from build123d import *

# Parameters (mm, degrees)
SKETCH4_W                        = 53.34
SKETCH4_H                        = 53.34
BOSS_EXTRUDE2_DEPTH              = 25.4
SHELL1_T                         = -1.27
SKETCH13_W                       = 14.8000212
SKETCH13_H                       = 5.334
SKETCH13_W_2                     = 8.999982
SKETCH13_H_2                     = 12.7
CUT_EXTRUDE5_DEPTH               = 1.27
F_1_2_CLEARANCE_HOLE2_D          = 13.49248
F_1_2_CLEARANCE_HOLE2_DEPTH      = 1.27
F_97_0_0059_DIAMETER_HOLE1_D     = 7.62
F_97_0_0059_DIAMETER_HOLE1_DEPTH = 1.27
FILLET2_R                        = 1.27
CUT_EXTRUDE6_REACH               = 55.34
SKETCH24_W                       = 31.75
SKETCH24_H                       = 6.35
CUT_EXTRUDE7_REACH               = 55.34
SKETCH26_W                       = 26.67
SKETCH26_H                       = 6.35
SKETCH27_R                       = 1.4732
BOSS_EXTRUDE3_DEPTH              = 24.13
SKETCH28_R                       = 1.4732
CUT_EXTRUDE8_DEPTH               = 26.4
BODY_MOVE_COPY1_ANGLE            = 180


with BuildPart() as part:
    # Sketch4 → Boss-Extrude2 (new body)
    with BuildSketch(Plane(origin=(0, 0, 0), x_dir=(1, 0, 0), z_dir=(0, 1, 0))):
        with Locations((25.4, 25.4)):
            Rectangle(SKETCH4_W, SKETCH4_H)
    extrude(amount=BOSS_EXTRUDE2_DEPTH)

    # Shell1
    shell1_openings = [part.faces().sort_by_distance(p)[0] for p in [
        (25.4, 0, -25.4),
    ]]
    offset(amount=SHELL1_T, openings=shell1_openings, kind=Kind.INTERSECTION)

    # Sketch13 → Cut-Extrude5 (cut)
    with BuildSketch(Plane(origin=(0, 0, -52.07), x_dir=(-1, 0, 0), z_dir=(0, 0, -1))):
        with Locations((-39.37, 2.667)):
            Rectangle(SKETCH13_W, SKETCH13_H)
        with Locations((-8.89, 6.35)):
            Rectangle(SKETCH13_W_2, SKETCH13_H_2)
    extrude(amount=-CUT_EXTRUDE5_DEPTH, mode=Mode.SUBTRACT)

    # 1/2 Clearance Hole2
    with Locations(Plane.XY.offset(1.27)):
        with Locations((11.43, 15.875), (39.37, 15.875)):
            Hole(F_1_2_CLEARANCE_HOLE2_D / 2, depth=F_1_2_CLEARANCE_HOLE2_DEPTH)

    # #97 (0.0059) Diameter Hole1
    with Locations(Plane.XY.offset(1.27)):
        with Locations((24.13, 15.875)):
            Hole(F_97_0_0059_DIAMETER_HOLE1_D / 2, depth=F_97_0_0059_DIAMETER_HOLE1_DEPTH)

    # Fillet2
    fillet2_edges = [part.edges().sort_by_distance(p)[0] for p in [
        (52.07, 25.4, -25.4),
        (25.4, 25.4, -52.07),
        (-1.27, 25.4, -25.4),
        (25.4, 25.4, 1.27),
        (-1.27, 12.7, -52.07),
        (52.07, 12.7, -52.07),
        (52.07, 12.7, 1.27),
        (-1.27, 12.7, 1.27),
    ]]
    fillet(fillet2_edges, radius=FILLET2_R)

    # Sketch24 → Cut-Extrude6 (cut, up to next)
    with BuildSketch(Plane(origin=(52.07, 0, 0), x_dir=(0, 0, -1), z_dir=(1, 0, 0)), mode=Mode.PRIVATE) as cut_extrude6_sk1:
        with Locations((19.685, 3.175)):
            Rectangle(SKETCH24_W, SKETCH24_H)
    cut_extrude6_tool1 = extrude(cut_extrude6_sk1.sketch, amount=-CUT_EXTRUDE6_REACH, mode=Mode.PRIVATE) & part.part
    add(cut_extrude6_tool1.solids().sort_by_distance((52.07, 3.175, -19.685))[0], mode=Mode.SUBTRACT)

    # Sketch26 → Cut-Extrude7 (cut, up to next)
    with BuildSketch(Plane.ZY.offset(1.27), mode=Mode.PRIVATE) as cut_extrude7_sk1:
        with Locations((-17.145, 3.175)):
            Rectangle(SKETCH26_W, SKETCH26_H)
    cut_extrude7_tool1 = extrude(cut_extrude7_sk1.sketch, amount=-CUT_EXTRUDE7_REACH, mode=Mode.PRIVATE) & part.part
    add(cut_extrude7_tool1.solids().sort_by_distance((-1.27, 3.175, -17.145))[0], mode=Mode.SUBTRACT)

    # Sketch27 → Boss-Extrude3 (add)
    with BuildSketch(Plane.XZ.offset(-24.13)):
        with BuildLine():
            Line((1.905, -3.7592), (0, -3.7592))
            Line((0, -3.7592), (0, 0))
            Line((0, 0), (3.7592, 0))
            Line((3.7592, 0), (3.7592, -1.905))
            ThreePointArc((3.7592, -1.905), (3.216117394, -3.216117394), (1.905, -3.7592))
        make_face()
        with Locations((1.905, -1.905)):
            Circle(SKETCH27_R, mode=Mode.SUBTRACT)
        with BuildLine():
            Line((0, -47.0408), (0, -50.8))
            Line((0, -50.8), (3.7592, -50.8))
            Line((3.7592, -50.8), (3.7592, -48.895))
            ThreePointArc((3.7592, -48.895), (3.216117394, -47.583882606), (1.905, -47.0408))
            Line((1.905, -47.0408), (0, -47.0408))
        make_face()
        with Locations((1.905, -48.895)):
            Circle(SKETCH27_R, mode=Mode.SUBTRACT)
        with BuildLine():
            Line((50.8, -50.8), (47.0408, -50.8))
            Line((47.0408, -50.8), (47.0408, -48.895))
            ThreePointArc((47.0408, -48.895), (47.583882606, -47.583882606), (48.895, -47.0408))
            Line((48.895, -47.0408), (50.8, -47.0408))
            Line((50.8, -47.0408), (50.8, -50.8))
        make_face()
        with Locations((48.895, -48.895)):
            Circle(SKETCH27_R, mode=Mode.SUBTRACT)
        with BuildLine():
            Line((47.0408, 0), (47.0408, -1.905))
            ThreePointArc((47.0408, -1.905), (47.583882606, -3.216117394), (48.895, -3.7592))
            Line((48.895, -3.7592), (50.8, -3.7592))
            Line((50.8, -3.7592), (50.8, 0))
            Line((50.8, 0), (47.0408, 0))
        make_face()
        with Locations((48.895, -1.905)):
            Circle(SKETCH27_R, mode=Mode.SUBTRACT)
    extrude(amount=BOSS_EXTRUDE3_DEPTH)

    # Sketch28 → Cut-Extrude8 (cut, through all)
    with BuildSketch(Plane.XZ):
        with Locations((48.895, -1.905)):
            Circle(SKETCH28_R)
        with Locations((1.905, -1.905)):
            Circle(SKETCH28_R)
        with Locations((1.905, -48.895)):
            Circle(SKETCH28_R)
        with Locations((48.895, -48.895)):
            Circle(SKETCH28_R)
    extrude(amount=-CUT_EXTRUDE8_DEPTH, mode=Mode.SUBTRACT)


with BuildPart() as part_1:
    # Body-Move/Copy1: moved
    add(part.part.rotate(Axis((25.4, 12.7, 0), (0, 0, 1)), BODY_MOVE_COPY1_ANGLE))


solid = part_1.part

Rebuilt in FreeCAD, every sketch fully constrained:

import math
import FreeCAD as App
import Part
import Sketcher

V = App.Vector
Q = App.Units.Quantity


def edges_at(feature, points):
    """Names of the edges that pass closest to the given points."""
    edges = feature.Shape.Edges
    near = lambda p: min(range(len(edges)), key=lambda i: edges[i].distToShape(Part.Vertex(*p))[0])
    return sorted({f"Edge{near(p) + 1}" for p in points})


def faces_at(feature, points):
    """Names of the faces that lie closest to the given points."""
    faces = feature.Shape.Faces
    near = lambda p: min(range(len(faces)), key=lambda i: faces[i].distToShape(Part.Vertex(*p))[0])
    return sorted({f"Face{near(p) + 1}" for p in points})


def add_polygon(sketch, points):
    """Adds a closed chain of lines whose ends are joined by coincident constraints."""
    first, n = sketch.GeometryCount, len(points)
    for a, b in zip(points, points[1:] + points[:1]):
        sketch.addGeometry(Part.LineSegment(App.Vector(*a, 0), App.Vector(*b, 0)), False)
    for i in range(n):
        sketch.addConstraint(Sketcher.Constraint("Coincident", first + i, 2, first + (i + 1) % n, 1))

doc = App.newDocument("Part")
body = doc.addObject("PartDesign::Body", "Body")

# Sketch on XZ plane
sketch1 = body.newObject("Sketcher::SketchObject", "Sketch")
sketch1.AttachmentSupport = (doc.getObject("XZ_Plane"), [""])
sketch1.MapMode = "FlatFace"
add_polygon(sketch1, [(-1, -52), (-1, 1), (52, 1), (52, -52)])  # lines 0-3
sketch1.addConstraint([
    Sketcher.Constraint("Vertical", 0),
    Sketcher.Constraint("Horizontal", 1),
    Sketcher.Constraint("Vertical", 2),
    Sketcher.Constraint("Horizontal", 3),
    Sketcher.Constraint("Equal", 3, 0),
    Sketcher.Constraint("DistanceX", 1, 1, 1, 2, Q("2.1 in")),
    Sketcher.Constraint("DistanceX", 0, 2, -1, 1, Q("0.05 in")),
    Sketcher.Constraint("DistanceY", -1, 1, 0, 2, Q("0.05 in")),
])
pad1 = body.newObject("PartDesign::Pad", "Pad")
pad1.Profile = sketch1
pad1.Length = Q("1 in")
pad1.Reversed = True
doc.recompute()

thickness = body.newObject("PartDesign::Thickness", "Thickness")
thickness.Base = (pad1, faces_at(pad1, [(25.4, 0, -25.4)]))
thickness.Value = Q("0.05 in")
thickness.Reversed = True
thickness.Join = "Intersection"

# Sketch on XY plane
sketch2 = body.newObject("Sketcher::SketchObject", "Sketch001")
sketch2.AttachmentSupport = (doc.getObject("XY_Plane"), [""])
sketch2.MapMode = "FlatFace"
sketch2.AttachmentOffset = App.Placement(V(0, 0, -2.05 * 25.4), App.Rotation())
add_polygon(sketch2, [(47, 5), (47, 0), (32, 0), (32, 5)])  # lines 0-3
add_polygon(sketch2, [(13, 13), (13, 0), (4, 0), (4, 13)])  # lines 4-7
sketch2.addConstraint([
    Sketcher.Constraint("Vertical", 0),
    Sketcher.Constraint("Horizontal", 1),
    Sketcher.Constraint("Vertical", 2),
    Sketcher.Constraint("Horizontal", 3),
    Sketcher.Constraint("Vertical", 4),
    Sketcher.Constraint("Horizontal", 5),
    Sketcher.Constraint("Vertical", 6),
    Sketcher.Constraint("Horizontal", 7),
    Sketcher.Constraint("PointOnObject", 0, 2, -1),
    Sketcher.Constraint("PointOnObject", 4, 2, -1),
    Sketcher.Constraint("DistanceY", 4, 2, 4, 1, Q("0.5 in")),
    Sketcher.Constraint("DistanceY", 0, 2, 0, 1, Q("0.21 in")),
    Sketcher.Constraint("DistanceX", 1, 2, 1, 1, 14.800021),
    Sketcher.Constraint("DistanceX", 5, 2, 5, 1, 8.999982),
    Sketcher.Constraint("DistanceX", 4, 2, 1, 2, 18.579998),
    Sketcher.Constraint("DistanceX", -1, 1, 0, 2, 46.770011),
])
pocket1 = body.newObject("PartDesign::Pocket", "Pocket")
pocket1.Profile = sketch2
pocket1.Length = Q("0.05 in")
pocket1.Reversed = True

# Sketch on XY plane
sketch3 = body.newObject("Sketcher::SketchObject", "Sketch002")
sketch3.AttachmentSupport = (doc.getObject("XY_Plane"), [""])
sketch3.MapMode = "FlatFace"
sketch3.AttachmentOffset = App.Placement(V(0, 0, 0.05 * 25.4), App.Rotation())
sketch3.addGeometry([
    Part.Circle(V(11, 16, 0), V(0, 0, 1), 7),
    Part.Circle(V(39, 16, 0), V(0, 0, 1), 7),
], False)
sketch3.addConstraint([
    Sketcher.Constraint("Equal", 0, 1),
    Sketcher.Constraint("Horizontal", 0, 3, 1, 3),
    Sketcher.Constraint("Diameter", 0, Q("0.5312 in")),
    Sketcher.Constraint("DistanceX", 0, 3, 1, 3, Q("1.1 in")),
    Sketcher.Constraint("DistanceX", -1, 1, 0, 3, Q("0.45 in")),
    Sketcher.Constraint("DistanceY", -1, 1, 0, 3, Q("0.625 in")),
])
doc.recompute()
hole = body.newObject("PartDesign::Hole", "Hole")
hole.Profile = sketch3
hole.ThreadType = "None"
hole.Diameter = Q("0.5312 in")
hole.DepthType = "Dimension"
hole.Depth = Q("0.05 in")
hole.DrillPoint = "Flat"

# Sketch on XY plane
sketch4 = body.newObject("Sketcher::SketchObject", "Sketch003")
sketch4.AttachmentSupport = (doc.getObject("XY_Plane"), [""])
sketch4.MapMode = "FlatFace"
sketch4.AttachmentOffset = App.Placement(V(0, 0, 0.05 * 25.4), App.Rotation())
sketch4.addGeometry(Part.Circle(V(24.1, 15.9, 0), V(0, 0, 1), 3.8), False)
sketch4.addConstraint([
    Sketcher.Constraint("Diameter", 0, Q("0.3 in")),
    Sketcher.Constraint("DistanceX", -1, 1, 0, 3, Q("0.95 in")),
    Sketcher.Constraint("DistanceY", -1, 1, 0, 3, Q("0.625 in")),
])
doc.recompute()
hole2 = body.newObject("PartDesign::Hole", "Hole001")
hole2.Profile = sketch4
hole2.ThreadType = "None"
hole2.Diameter = Q("0.3 in")
hole2.DepthType = "Dimension"
hole2.Depth = Q("0.05 in")
hole2.DrillPoint = "Flat"
doc.recompute()

fillet = body.newObject("PartDesign::Fillet", "Fillet")
fillet.Base = (hole2, edges_at(hole2, [
    (52.07, 25.4, -25.4),
    (25.4, 25.4, -52.07),
    (-1.27, 25.4, -25.4),
    (25.4, 25.4, 1.27),
    (-1.27, 12.7, -52.07),
    (52.07, 12.7, -52.07),
    (52.07, 12.7, 1.27),
    (-1.27, 12.7, 1.27),
]))
fillet.Radius = Q("0.05 in")

# Sketch on YZ plane
sketch5 = body.newObject("Sketcher::SketchObject", "Sketch004")
sketch5.AttachmentSupport = (doc.getObject("YZ_Plane"), [""])
sketch5.MapMode = "FlatFace"
sketch5.AttachmentOffset = App.Placement(V(0, 0, 2.05 * 25.4), App.Rotation())
add_polygon(sketch5, [(6, -4), (0, -4), (0, -36), (6, -36)])  # lines 0-3
sketch5.addConstraint([
    Sketcher.Constraint("Horizontal", 0),
    Sketcher.Constraint("Vertical", 1),
    Sketcher.Constraint("Horizontal", 2),
    Sketcher.Constraint("Vertical", 3),
    Sketcher.Constraint("PointOnObject", 0, 2, -2),
    Sketcher.Constraint("DistanceX", 0, 2, 0, 1, Q("0.25 in")),
    Sketcher.Constraint("DistanceY", 1, 2, 1, 1, Q("1.25 in")),
    Sketcher.Constraint("DistanceY", 1, 2, -1, 1, Q("1.4 in")),
])
pocket2 = body.newObject("PartDesign::Pocket", "Pocket001")
pocket2.Profile = sketch5
pocket2.Type = "UpToFirst"

# Sketch on YZ plane
sketch6 = body.newObject("Sketcher::SketchObject", "Sketch005")
sketch6.AttachmentSupport = (doc.getObject("YZ_Plane"), [""])
sketch6.MapMode = "FlatFace"
sketch6.AttachmentOffset = App.Placement(V(0, 0, -0.05 * 25.4), App.Rotation())
add_polygon(sketch6, [(6, -30), (0, -30), (0, -4), (6, -4)])  # lines 0-3
sketch6.addConstraint([
    Sketcher.Constraint("Horizontal", 0),
    Sketcher.Constraint("Vertical", 1),
    Sketcher.Constraint("Horizontal", 2),
    Sketcher.Constraint("Vertical", 3),
    Sketcher.Constraint("PointOnObject", 0, 2, -2),
    Sketcher.Constraint("DistanceX", 0, 2, 0, 1, Q("0.25 in")),
    Sketcher.Constraint("DistanceY", 1, 1, 1, 2, Q("1.05 in")),
    Sketcher.Constraint("DistanceY", 0, 2, -1, 1, Q("1.2 in")),
])
pocket3 = body.newObject("PartDesign::Pocket", "Pocket002")
pocket3.Profile = sketch6
pocket3.Type = "UpToFirst"
pocket3.Reversed = True

# Sketch on XZ plane
sketch7 = body.newObject("Sketcher::SketchObject", "Sketch006")
sketch7.AttachmentSupport = (doc.getObject("XZ_Plane"), [""])
sketch7.MapMode = "FlatFace"
sketch7.AttachmentOffset = App.Placement(V(0, 0, -0.95 * 25.4), App.Rotation())
sketch7.addGeometry([
    Part.LineSegment(V(0, -3.8, 0), V(1.9, -3.8, 0)),  # 0
    Part.ArcOfCircle(Part.Circle(V(1.9, -1.9, 0), V(0, 0, 1), 1.9), math.radians(-90), math.radians(0)),  # 1
    Part.LineSegment(V(3.8, -1.9, 0), V(3.8, 0, 0)),  # 2
    Part.LineSegment(V(3.8, 0, 0), V(0, 0, 0)),  # 3
    Part.LineSegment(V(0, 0, 0), V(0, -3.8, 0)),  # 4
    Part.Circle(V(1.9, -1.9, 0), V(0, 0, 1), 1.5),  # 5
    Part.LineSegment(V(0, -47, 0), V(0, -50.8, 0)),  # 6
    Part.LineSegment(V(0, -50.8, 0), V(3.8, -50.8, 0)),  # 7
    Part.LineSegment(V(3.8, -50.8, 0), V(3.8, -48.9, 0)),  # 8
    Part.ArcOfCircle(Part.Circle(V(1.9, -48.9, 0), V(0, 0, 1), 1.9), math.radians(0), math.radians(90)),  # 9
    Part.LineSegment(V(1.9, -47, 0), V(0, -47, 0)),  # 10
    Part.Circle(V(1.9, -48.9, 0), V(0, 0, 1), 1.5),  # 11
    Part.LineSegment(V(47, -50.8, 0), V(50.8, -50.8, 0)),  # 12
    Part.LineSegment(V(50.8, -50.8, 0), V(50.8, -47, 0)),  # 13
    Part.LineSegment(V(50.8, -47, 0), V(48.9, -47, 0)),  # 14
    Part.ArcOfCircle(Part.Circle(V(48.9, -48.9, 0), V(0, 0, 1), 1.9), math.radians(90), math.radians(180)),  # 15
    Part.LineSegment(V(47, -48.9, 0), V(47, -50.8, 0)),  # 16
    Part.Circle(V(48.9, -48.9, 0), V(0, 0, 1), 1.5),  # 17
    Part.LineSegment(V(47, 0, 0), V(47, -1.9, 0)),  # 18
    Part.ArcOfCircle(Part.Circle(V(48.9, -1.9, 0), V(0, 0, 1), 1.9), math.radians(180), math.radians(270)),  # 19
    Part.LineSegment(V(48.9, -3.8, 0), V(50.8, -3.8, 0)),  # 20
    Part.LineSegment(V(50.8, -3.8, 0), V(50.8, 0, 0)),  # 21
    Part.LineSegment(V(50.8, 0, 0), V(47, 0, 0)),  # 22
    Part.Circle(V(48.9, -1.9, 0), V(0, 0, 1), 1.5),  # 23
], False)
sketch7.addConstraint([
    Sketcher.Constraint("Tangent", 0, 2, 1, 1),
    Sketcher.Constraint("Tangent", 1, 2, 2, 1),
    Sketcher.Constraint("Coincident", 2, 2, 3, 1),
    Sketcher.Constraint("Coincident", 3, 2, 4, 1),
    Sketcher.Constraint("Coincident", 4, 2, 0, 1),
    Sketcher.Constraint("Coincident", 6, 2, 7, 1),
    Sketcher.Constraint("Coincident", 7, 2, 8, 1),
    Sketcher.Constraint("Tangent", 8, 2, 9, 1),
    Sketcher.Constraint("Tangent", 9, 2, 10, 1),
    Sketcher.Constraint("Coincident", 10, 2, 6, 1),
    Sketcher.Constraint("Coincident", 12, 2, 13, 1),
    Sketcher.Constraint("Coincident", 13, 2, 14, 1),
    Sketcher.Constraint("Tangent", 14, 2, 15, 1),
    Sketcher.Constraint("Tangent", 15, 2, 16, 1),
    Sketcher.Constraint("Coincident", 16, 2, 12, 1),
    Sketcher.Constraint("Tangent", 18, 2, 19, 1),
    Sketcher.Constraint("Tangent", 19, 2, 20, 1),
    Sketcher.Constraint("Coincident", 20, 2, 21, 1),
    Sketcher.Constraint("Coincident", 21, 2, 22, 1),
    Sketcher.Constraint("Coincident", 22, 2, 18, 1),
    Sketcher.Constraint("Horizontal", 0),
    Sketcher.Constraint("Vertical", 2),
    Sketcher.Constraint("Horizontal", 3),
    Sketcher.Constraint("Vertical", 4),
    Sketcher.Constraint("Vertical", 6),
    Sketcher.Constraint("Horizontal", 7),
    Sketcher.Constraint("Vertical", 8),
    Sketcher.Constraint("Horizontal", 10),
    Sketcher.Constraint("Horizontal", 12),
    Sketcher.Constraint("Vertical", 13),
    Sketcher.Constraint("Horizontal", 14),
    Sketcher.Constraint("Vertical", 16),
    Sketcher.Constraint("Vertical", 18),
    Sketcher.Constraint("Horizontal", 20),
    Sketcher.Constraint("Vertical", 21),
    Sketcher.Constraint("Horizontal", 22),
    Sketcher.Constraint("Coincident", 3, 2, -1, 1),
    Sketcher.Constraint("Coincident", 5, 3, 1, 3),
    Sketcher.Constraint("Coincident", 11, 3, 9, 3),
    Sketcher.Constraint("Coincident", 17, 3, 15, 3),
    Sketcher.Constraint("Coincident", 23, 3, 19, 3),
    Sketcher.Constraint("Equal", 1, 9),
    Sketcher.Constraint("Equal", 5, 11),
    Sketcher.Constraint("Equal", 9, 15),
    Sketcher.Constraint("Equal", 11, 17),
    Sketcher.Constraint("Equal", 15, 19),
    Sketcher.Constraint("Equal", 17, 23),
    Sketcher.Constraint("PointOnObject", 6, 2, -2),
    Sketcher.Constraint("PointOnObject", 21, 2, -1),
    Sketcher.Constraint("Horizontal", 11, 3, 15, 3),
    Sketcher.Constraint("Horizontal", 5, 3, 19, 3),
    Sketcher.Constraint("Horizontal", 7, 2, 12, 2),
    Sketcher.Constraint("Vertical", 5, 3, 9, 3),
    Sketcher.Constraint("Vertical", 17, 3, 19, 3),
    Sketcher.Constraint("Vertical", 13, 2, 20, 2),
    Sketcher.Constraint("Equal", 7, 12),
    Sketcher.Constraint("Equal", 20, 2),
    Sketcher.Constraint("Equal", 4, 6),
    Sketcher.Constraint("Diameter", 5, Q("0.116 in")),
    Sketcher.Constraint("DistanceY", 6, 2, -1, 1, Q("2 in")),
    Sketcher.Constraint("DistanceX", -1, 1, 12, 2, Q("2 in")),
    Sketcher.Constraint("Radius", 1, Q("0.073 in")),
    Sketcher.Constraint("DistanceX", 0, 1, 0, 2, Q("0.075 in")),
])
pad2 = body.newObject("PartDesign::Pad", "Pad001")
pad2.Profile = sketch7
pad2.Length = Q("0.95 in")

# Sketch on XZ plane
sketch8 = body.newObject("Sketcher::SketchObject", "Sketch007")
sketch8.AttachmentSupport = (doc.getObject("XZ_Plane"), [""])
sketch8.MapMode = "FlatFace"
sketch8.addGeometry([
    Part.Circle(V(48.9, -1.9, 0), V(0, 0, 1), 1.5),
    Part.Circle(V(1.9, -1.9, 0), V(0, 0, 1), 1.5),
    Part.Circle(V(1.9, -48.9, 0), V(0, 0, 1), 1.5),
    Part.Circle(V(48.9, -48.9, 0), V(0, 0, 1), 1.5),
], False)
sketch8.addConstraint([
    Sketcher.Constraint("Equal", 0, 1),
    Sketcher.Constraint("Equal", 1, 2),
    Sketcher.Constraint("Equal", 2, 3),
    Sketcher.Constraint("Horizontal", 0, 3, 1, 3),
    Sketcher.Constraint("Horizontal", 2, 3, 3, 3),
    Sketcher.Constraint("Vertical", 1, 3, 2, 3),
    Sketcher.Constraint("Vertical", 0, 3, 3, 3),
    Sketcher.Constraint("Diameter", 0, Q("0.116 in")),
    Sketcher.Constraint("DistanceX", 1, 3, 0, 3, Q("1.85 in")),
    Sketcher.Constraint("DistanceY", 2, 3, 1, 3, Q("1.85 in")),
    Sketcher.Constraint("DistanceX", -1, 1, 0, 3, Q("1.925 in")),
    Sketcher.Constraint("DistanceY", 0, 3, -1, 1, Q("0.075 in")),
])
pocket4 = body.newObject("PartDesign::Pocket", "Pocket003")
pocket4.Profile = sketch8
pocket4.Type = "ThroughAll"
body2 = doc.addObject("PartDesign::Body", "Body001")
doc.recompute()

body.Placement = App.Placement(V(50.8, 25.4, 0), App.Rotation(V(0, 0, 1), 180))
boolean = body2.newObject("PartDesign::Boolean", "Boolean")
boolean.Type = "Fuse"
boolean.addObjects([body])

doc.recompute()
